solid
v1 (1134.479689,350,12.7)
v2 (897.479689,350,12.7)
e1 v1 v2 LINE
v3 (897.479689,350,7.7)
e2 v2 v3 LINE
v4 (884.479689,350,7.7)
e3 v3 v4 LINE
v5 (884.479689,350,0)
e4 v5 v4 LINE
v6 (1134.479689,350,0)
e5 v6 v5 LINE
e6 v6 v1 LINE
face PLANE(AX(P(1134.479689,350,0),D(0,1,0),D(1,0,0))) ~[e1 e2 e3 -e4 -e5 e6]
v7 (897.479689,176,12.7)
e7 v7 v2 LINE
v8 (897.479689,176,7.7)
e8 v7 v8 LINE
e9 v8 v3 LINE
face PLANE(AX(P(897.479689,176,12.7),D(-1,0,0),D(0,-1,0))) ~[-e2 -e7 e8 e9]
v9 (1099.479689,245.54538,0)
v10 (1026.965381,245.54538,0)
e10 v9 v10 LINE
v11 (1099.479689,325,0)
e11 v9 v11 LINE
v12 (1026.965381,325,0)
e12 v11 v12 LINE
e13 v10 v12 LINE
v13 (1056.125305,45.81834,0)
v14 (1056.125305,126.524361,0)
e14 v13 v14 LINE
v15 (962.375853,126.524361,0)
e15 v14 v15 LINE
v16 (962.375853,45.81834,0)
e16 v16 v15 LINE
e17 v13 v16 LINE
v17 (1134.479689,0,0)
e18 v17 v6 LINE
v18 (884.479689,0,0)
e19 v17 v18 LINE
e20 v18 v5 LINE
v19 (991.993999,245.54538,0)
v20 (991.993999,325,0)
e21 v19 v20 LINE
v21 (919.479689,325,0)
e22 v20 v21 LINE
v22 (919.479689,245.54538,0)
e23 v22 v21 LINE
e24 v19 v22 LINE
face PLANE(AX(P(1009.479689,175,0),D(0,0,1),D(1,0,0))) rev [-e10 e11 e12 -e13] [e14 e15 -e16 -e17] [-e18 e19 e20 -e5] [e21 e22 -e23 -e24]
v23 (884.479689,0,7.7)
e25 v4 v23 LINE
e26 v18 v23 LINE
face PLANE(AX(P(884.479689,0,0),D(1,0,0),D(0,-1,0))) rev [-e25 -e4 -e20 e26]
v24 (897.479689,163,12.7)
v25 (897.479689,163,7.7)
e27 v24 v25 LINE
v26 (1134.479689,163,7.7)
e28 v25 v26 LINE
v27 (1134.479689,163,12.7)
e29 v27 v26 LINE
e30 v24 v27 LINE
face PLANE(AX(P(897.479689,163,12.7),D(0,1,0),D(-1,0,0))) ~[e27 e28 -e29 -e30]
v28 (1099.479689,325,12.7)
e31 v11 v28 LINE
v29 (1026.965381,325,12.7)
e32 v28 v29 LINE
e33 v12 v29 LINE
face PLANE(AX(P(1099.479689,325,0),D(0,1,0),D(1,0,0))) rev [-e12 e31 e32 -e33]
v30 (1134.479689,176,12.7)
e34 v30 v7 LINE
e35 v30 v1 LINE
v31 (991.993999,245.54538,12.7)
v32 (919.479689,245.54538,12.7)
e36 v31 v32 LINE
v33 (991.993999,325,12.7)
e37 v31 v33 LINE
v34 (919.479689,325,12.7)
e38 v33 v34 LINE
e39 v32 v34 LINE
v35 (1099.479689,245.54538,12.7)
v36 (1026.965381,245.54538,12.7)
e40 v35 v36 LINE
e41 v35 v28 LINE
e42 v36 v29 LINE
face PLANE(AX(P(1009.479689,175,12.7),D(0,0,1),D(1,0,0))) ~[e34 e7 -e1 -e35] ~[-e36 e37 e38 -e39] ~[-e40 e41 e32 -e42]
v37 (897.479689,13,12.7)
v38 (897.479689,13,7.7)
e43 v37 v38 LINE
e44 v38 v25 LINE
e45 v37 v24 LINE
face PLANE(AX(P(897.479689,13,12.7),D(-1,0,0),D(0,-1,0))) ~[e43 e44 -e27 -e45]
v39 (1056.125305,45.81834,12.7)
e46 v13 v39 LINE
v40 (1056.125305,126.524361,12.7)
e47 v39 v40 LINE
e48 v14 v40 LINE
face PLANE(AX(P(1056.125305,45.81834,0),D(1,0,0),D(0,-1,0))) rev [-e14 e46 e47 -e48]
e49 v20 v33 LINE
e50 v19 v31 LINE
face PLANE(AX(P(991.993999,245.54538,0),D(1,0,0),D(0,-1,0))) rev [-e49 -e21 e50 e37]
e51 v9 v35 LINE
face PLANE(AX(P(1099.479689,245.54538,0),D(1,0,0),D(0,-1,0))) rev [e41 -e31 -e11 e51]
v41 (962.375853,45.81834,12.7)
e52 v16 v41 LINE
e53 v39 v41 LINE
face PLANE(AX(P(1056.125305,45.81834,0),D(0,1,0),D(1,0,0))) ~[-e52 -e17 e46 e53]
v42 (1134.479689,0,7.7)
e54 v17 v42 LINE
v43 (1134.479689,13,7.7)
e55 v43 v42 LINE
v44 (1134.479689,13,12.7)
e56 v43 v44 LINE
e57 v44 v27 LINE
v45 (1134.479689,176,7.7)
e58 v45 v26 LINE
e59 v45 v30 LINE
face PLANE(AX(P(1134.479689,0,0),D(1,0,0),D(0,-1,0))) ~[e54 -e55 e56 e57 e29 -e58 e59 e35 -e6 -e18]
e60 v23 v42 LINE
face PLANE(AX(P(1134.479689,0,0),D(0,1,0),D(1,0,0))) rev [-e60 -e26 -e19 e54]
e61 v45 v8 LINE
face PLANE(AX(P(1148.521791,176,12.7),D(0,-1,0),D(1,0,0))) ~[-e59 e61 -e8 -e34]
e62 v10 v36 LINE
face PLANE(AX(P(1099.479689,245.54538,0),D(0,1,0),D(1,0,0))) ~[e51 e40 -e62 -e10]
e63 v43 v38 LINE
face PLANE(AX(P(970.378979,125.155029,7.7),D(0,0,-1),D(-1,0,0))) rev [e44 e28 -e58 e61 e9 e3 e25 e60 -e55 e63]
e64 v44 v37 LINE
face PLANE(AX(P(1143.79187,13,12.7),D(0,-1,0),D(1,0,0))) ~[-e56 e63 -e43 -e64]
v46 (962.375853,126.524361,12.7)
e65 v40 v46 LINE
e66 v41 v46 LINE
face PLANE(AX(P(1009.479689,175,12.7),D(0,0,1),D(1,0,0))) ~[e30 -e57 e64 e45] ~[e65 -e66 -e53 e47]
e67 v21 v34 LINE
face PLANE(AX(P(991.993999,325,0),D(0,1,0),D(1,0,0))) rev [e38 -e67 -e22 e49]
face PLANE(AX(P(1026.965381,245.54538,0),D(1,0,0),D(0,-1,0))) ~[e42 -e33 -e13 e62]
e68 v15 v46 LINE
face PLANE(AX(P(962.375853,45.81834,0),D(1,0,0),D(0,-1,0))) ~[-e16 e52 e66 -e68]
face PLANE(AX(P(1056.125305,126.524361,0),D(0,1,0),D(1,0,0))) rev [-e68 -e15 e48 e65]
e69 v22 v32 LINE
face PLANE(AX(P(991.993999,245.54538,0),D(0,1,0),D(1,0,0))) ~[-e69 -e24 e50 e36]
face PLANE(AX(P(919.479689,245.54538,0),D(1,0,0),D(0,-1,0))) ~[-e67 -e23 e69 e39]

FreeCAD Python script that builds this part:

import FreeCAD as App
import Part
import Sketcher
from FreeCAD import Vector
Q = App.Units.Quantity


def add_polygon(sketch, points):
    """Adds a closed chain of lines whose ends are joined by coincident constraints."""
    first, n = sketch.GeometryCount, len(points)
    for a, b in zip(points, points[1:] + points[:1]):
        sketch.addGeometry(Part.LineSegment(App.Vector(*a, 0), App.Vector(*b, 0)), False)
    for i in range(n):
        sketch.addConstraint(Sketcher.Constraint("Coincident", first + i, 2, first + (i + 1) % n, 1))

doc = App.newDocument("Part")
params = doc.addObject("Spreadsheet::Sheet", "Params")
for row, (alias, value) in enumerate([
    ("sketch1_width", "250 mm"),
    ("sketch1_height", "350 mm"),
    ("pad1_length", "12.7 mm"),
    ("sketch2_width", "13 mm"),
    ("sketch2_height", "150 mm"),
    ("sketch2_height2", "350 mm"),
    ("pocket1_length", "5 mm"),
], start=1):
    params.set(f"A{row}", alias)
    params.set(f"B{row}", "=" + value)
    params.setAlias(f"B{row}", alias)

body = doc.addObject("PartDesign::Body", "Body")

# Sketch on XY plane
sketch1 = doc.addObject("Sketcher::SketchObject", "Sketch")
body.addObject(sketch1)
sketch1.AttachmentSupport = (doc.XY_Plane, [""])
sketch1.MapMode = "FlatFace"
add_polygon(sketch1, [(624, 350), (624, 0), (874, 0), (874, 350)])  # lines 0-3
add_polygon(sketch1, [(796, 46), (702, 46), (702, 127), (796, 127)])  # lines 4-7
add_polygon(sketch1, [(732, 246), (659, 246), (659, 325), (732, 325)])  # lines 8-11
add_polygon(sketch1, [(839, 246), (766, 246), (766, 325), (839, 325)])  # lines 12-15
sketch1.addConstraint(Sketcher.Constraint("Vertical", 0))
sketch1.addConstraint(Sketcher.Constraint("Horizontal", 1))
sketch1.addConstraint(Sketcher.Constraint("Vertical", 2))
sketch1.addConstraint(Sketcher.Constraint("Horizontal", 3))
sketch1.addConstraint(Sketcher.Constraint("Horizontal", 4))
sketch1.addConstraint(Sketcher.Constraint("Vertical", 5))
sketch1.addConstraint(Sketcher.Constraint("Horizontal", 6))
sketch1.addConstraint(Sketcher.Constraint("Vertical", 7))
sketch1.addConstraint(Sketcher.Constraint("Horizontal", 8))
sketch1.addConstraint(Sketcher.Constraint("Vertical", 9))
sketch1.addConstraint(Sketcher.Constraint("Horizontal", 10))
sketch1.addConstraint(Sketcher.Constraint("Vertical", 11))
sketch1.addConstraint(Sketcher.Constraint("Horizontal", 12))
sketch1.addConstraint(Sketcher.Constraint("Vertical", 13))
sketch1.addConstraint(Sketcher.Constraint("Horizontal", 14))
sketch1.addConstraint(Sketcher.Constraint("Vertical", 15))
sketch1.addConstraint(Sketcher.Constraint("PointOnObject", 0, 2, -1))
sketch1.addConstraint(Sketcher.Constraint("Horizontal", 11, 2, 12, 2))
sketch1.addConstraint(Sketcher.Constraint("Horizontal", 10, 2, 13, 2))
sketch1.addConstraint(Sketcher.Constraint("Equal", 10, 12))
sketch1.addConstraint(Sketcher.Constraint("DistanceX", 1, 1, 1, 2, Q("250 mm")))
sketch1.addConstraint(Sketcher.Constraint("DistanceY", 0, 2, 0, 1, Q("350 mm")))
sketch1.addConstraint(Sketcher.Constraint("DistanceY", -1, 1, 9, 2, Q("325 mm")))
sketch1.addConstraint(Sketcher.Constraint("DistanceX", 3, 2, 8, 2, Q("34.999999 mm")))
sketch1.addConstraint(Sketcher.Constraint("DistanceX", 14, 2, 2, 2, Q("35 mm")))
sketch1.addConstraint(Sketcher.Constraint("DistanceX", 4, 2, 4, 1, Q("93.749451 mm")))
sketch1.addConstraint(Sketcher.Constraint("DistanceX", 8, 2, 8, 1, Q("72.514309 mm")))
sketch1.addConstraint(Sketcher.Constraint("DistanceY", 5, 1, 5, 2, Q("80.706021 mm")))
sketch1.addConstraint(Sketcher.Constraint("DistanceY", 9, 1, 9, 2, Q("79.45462 mm")))
sketch1.addConstraint(Sketcher.Constraint("DistanceX", -1, 1, 6, 2, Q("796.1073 mm")))
sketch1.addConstraint(Sketcher.Constraint("DistanceY", -1, 1, 4, 2, Q("45.81834 mm")))
sketch1.addConstraint(Sketcher.Constraint("DistanceX", -1, 1, 0, 2, Q("624.003465 mm")))
sketch1.setExpression("Constraints[36]", "Params.sketch1_width")
sketch1.setExpression("Constraints[37]", "Params.sketch1_height")
pad1 = doc.addObject("PartDesign::Pad", "Pad")
body.addObject(pad1)
pad1.Profile = sketch1
pad1.setExpression("Length", "Params.pad1_length")

# Sketch on XY plane
sketch2 = doc.addObject("Sketcher::SketchObject", "Sketch001")
body.addObject(sketch2)
sketch2.AttachmentSupport = (doc.XY_Plane, [""])
sketch2.MapMode = "FlatFace"
sketch2.AttachmentOffset = App.Placement(Vector(0, 0, 12.7), App.Rotation())
add_polygon(sketch2, [(861, 176), (610, 176), (610, 163), (861, 163), (861, 13), (615, 13), (615, 0), (874, 0), (874, 350), (861, 350)])  # lines 0-9
sketch2.addConstraint(Sketcher.Constraint("Horizontal", 0))
sketch2.addConstraint(Sketcher.Constraint("Vertical", 1))
sketch2.addConstraint(Sketcher.Constraint("Horizontal", 2))
sketch2.addConstraint(Sketcher.Constraint("Vertical", 3))
sketch2.addConstraint(Sketcher.Constraint("Horizontal", 4))
sketch2.addConstraint(Sketcher.Constraint("Vertical", 5))
sketch2.addConstraint(Sketcher.Constraint("Horizontal", 6))
sketch2.addConstraint(Sketcher.Constraint("Vertical", 7))
sketch2.addConstraint(Sketcher.Constraint("Horizontal", 8))
sketch2.addConstraint(Sketcher.Constraint("Vertical", 9))
sketch2.addConstraint(Sketcher.Constraint("PointOnObject", 5, 2, -1))
sketch2.addConstraint(Sketcher.Constraint("Vertical", 3, 2, 8, 2))
sketch2.addConstraint(Sketcher.Constraint("Equal", 8, 1))
sketch2.addConstraint(Sketcher.Constraint("Equal", 1, 5))
sketch2.addConstraint(Sketcher.Constraint("DistanceX", 8, 2, 8, 1, Q("13 mm")))
sketch2.addConstraint(Sketcher.Constraint("DistanceY", 3, 2, 3, 1, Q("150 mm")))
sketch2.addConstraint(Sketcher.Constraint("DistanceY", 7, 1, 7, 2, Q("350 mm")))
sketch2.addConstraint(Sketcher.Constraint("DistanceX", 0, 2, 0, 1, Q("251.042102 mm")))
sketch2.addConstraint(Sketcher.Constraint("DistanceX", 4, 2, 4, 1, Q("246.312181 mm")))
sketch2.addConstraint(Sketcher.Constraint("DistanceX", -1, 1, 0, 2, Q("609.961363 mm")))
sketch2.setExpression("Constraints[24]", "Params.sketch2_width")
sketch2.setExpression("Constraints[25]", "Params.sketch2_height")
sketch2.setExpression("Constraints[26]", "Params.sketch2_height2")
pocket1 = doc.addObject("PartDesign::Pocket", "Pocket")
body.addObject(pocket1)
pocket1.Profile = sketch2
pocket1.setExpression("Length", "Params.pocket1_length")
body2 = doc.addObject("PartDesign::Body", "Body001")
doc.recompute()

mirroring = doc.addObject("Part::Mirroring", "Mirroring")
mirroring.Source = body
mirroring.Base = Vector(879.241577, 357.188568, 0)
mirroring.Normal = Vector(-1, 0, 0)
body2.BaseFeature = mirroring
doc.recompute()
body.Visibility = False
mirroring.Visibility = False

doc.recompute()
